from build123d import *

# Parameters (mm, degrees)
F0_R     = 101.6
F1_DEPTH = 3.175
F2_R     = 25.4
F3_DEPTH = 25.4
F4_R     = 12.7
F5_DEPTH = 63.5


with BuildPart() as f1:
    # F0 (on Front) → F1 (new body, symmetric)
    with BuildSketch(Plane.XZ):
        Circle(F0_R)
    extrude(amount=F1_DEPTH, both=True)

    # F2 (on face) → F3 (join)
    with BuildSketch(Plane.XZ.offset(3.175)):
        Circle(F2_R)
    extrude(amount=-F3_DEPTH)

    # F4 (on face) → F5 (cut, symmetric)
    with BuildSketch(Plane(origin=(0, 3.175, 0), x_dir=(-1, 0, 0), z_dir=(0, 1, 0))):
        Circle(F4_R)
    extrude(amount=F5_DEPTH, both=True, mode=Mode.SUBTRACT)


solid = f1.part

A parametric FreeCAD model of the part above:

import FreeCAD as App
import Part
import Sketcher
Q = App.Units.Quantity

doc = App.newDocument("Part")
body = doc.addObject("PartDesign::Body", "Body")

sketch1 = body.newObject("Sketcher::SketchObject", "Sketch")
sketch1.AttachmentSupport = (doc.getObject("XZ_Plane"), [""])
sketch1.MapMode = "FlatFace"
sketch1.addGeometry(Part.Circle(App.Vector(0, 0, 0), App.Vector(0, 0, 1), 101.6), False)
sketch1.addConstraint([
    Sketcher.Constraint("Coincident", 0, 3, -1, 1),
    Sketcher.Constraint("Diameter", 0, Q("8 in")),
])
pad1 = body.newObject("PartDesign::Pad", "Pad")
pad1.Profile = sketch1
pad1.Length = Q("0.25 in")
pad1.Midplane = True

sketch2 = body.newObject("Sketcher::SketchObject", "Sketch001")
sketch2.AttachmentSupport = (doc.getObject("XZ_Plane"), [""])
sketch2.MapMode = "FlatFace"
sketch2.AttachmentOffset = App.Placement(App.Vector(0, 0, 0.125 * 25.4), App.Rotation())
sketch2.addGeometry(Part.Circle(App.Vector(0, 0, 0), App.Vector(0, 0, 1), 25.4), False)
sketch2.addConstraint([
    Sketcher.Constraint("Coincident", 0, 3, -1, 1),
    Sketcher.Constraint("Diameter", 0, Q("2 in")),
])
pad2 = body.newObject("PartDesign::Pad", "Pad001")
pad2.Profile = sketch2
pad2.Length = Q("1 in")
pad2.Reversed = True

sketch3 = body.newObject("Sketcher::SketchObject", "Sketch002")
sketch3.AttachmentSupport = (doc.getObject("XZ_Plane"), [""])
sketch3.MapMode = "FlatFace"
sketch3.AttachmentOffset = App.Placement(App.Vector(0, 0, -0.125 * 25.4), App.Rotation())
sketch3.addGeometry(Part.Circle(App.Vector(0, 0, 0), App.Vector(0, 0, 1), 12.7), False)
sketch3.addConstraint([
    Sketcher.Constraint("Coincident", 0, 3, -1, 1),
    Sketcher.Constraint("Diameter", 0, Q("1 in")),
])
pocket1 = body.newObject("PartDesign::Pocket", "Pocket")
pocket1.Profile = sketch3
pocket1.Length = Q("5 in")
pocket1.Midplane = True

doc.recompute()
